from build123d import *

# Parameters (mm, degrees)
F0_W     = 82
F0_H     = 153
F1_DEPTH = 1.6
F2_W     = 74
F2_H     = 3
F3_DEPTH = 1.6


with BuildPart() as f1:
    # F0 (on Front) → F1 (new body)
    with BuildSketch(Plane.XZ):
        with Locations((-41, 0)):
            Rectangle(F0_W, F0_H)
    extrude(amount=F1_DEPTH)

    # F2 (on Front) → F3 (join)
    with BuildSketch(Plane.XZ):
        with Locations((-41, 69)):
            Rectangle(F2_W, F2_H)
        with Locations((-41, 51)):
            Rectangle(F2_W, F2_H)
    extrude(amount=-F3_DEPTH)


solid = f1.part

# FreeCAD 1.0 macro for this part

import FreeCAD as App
import Part
import Sketcher
Q = App.Units.Quantity

doc = App.newDocument("Part")
body = doc.addObject("PartDesign::Body", "Body")

# Sketch on XZ plane
sketch1 = body.newObject("Sketcher::SketchObject", "Sketch")
sketch1.AttachmentSupport = (doc.getObject("XZ_Plane"), [""])
sketch1.MapMode = "FlatFace"
sketch1.addGeometry([
    Part.LineSegment(App.Vector(-82, 76.5, 0), App.Vector(-82, -76.5, 0)),
    Part.LineSegment(App.Vector(-82, -76.5, 0), App.Vector(0, -76.5, 0)),
    Part.LineSegment(App.Vector(0, -76.5, 0), App.Vector(0, 76.5, 0)),
    Part.LineSegment(App.Vector(0, 76.5, 0), App.Vector(-82, 76.5, 0)),
], False)
sketch1.addConstraint([
    Sketcher.Constraint("Coincident", 0, 2, 1, 1),
    Sketcher.Constraint("Coincident", 1, 2, 2, 1),
    Sketcher.Constraint("Coincident", 2, 2, 3, 1),
    Sketcher.Constraint("Coincident", 3, 2, 0, 1),
    Sketcher.Constraint("Vertical", 0),
    Sketcher.Constraint("Horizontal", 1),
    Sketcher.Constraint("Vertical", 2),
    Sketcher.Constraint("Horizontal", 3),
    Sketcher.Constraint("Symmetric", 1, 2, 2, 2, -1, 1),
    Sketcher.Constraint("DistanceX", 1, 1, 1, 2, Q("82 mm")),
    Sketcher.Constraint("DistanceY", 0, 2, 0, 1, Q("153 mm")),
])
pad1 = body.newObject("PartDesign::Pad", "Pad")
pad1.Profile = sketch1
pad1.Length = 1.6

# Sketch on XZ plane
sketch2 = body.newObject("Sketcher::SketchObject", "Sketch001")
sketch2.AttachmentSupport = (doc.getObject("XZ_Plane"), [""])
sketch2.MapMode = "FlatFace"
sketch2.addGeometry([
    Part.LineSegment(App.Vector(-78, 70.5, 0), App.Vector(-78, 67.5, 0)),  # 0
    Part.LineSegment(App.Vector(-78, 67.5, 0), App.Vector(-4, 67.5, 0)),  # 1
    Part.LineSegment(App.Vector(-4, 67.5, 0), App.Vector(-4, 70.5, 0)),  # 2
    Part.LineSegment(App.Vector(-4, 70.5, 0), App.Vector(-78, 70.5, 0)),  # 3
    Part.LineSegment(App.Vector(-78, 52.5, 0), App.Vector(-78, 49.5, 0)),  # 4
    Part.LineSegment(App.Vector(-78, 49.5, 0), App.Vector(-4, 49.5, 0)),  # 5
    Part.LineSegment(App.Vector(-4, 49.5, 0), App.Vector(-4, 52.5, 0)),  # 6
    Part.LineSegment(App.Vector(-4, 52.5, 0), App.Vector(-78, 52.5, 0)),  # 7
], False)
sketch2.addConstraint([
    Sketcher.Constraint("Coincident", 0, 2, 1, 1),
    Sketcher.Constraint("Coincident", 1, 2, 2, 1),
    Sketcher.Constraint("Coincident", 2, 2, 3, 1),
    Sketcher.Constraint("Coincident", 3, 2, 0, 1),
    Sketcher.Constraint("Coincident", 4, 2, 5, 1),
    Sketcher.Constraint("Coincident", 5, 2, 6, 1),
    Sketcher.Constraint("Coincident", 6, 2, 7, 1),
    Sketcher.Constraint("Coincident", 7, 2, 4, 1),
    Sketcher.Constraint("Vertical", 0),
    Sketcher.Constraint("Horizontal", 1),
    Sketcher.Constraint("Vertical", 2),
    Sketcher.Constraint("Horizontal", 3),
    Sketcher.Constraint("Vertical", 4),
    Sketcher.Constraint("Horizontal", 5),
    Sketcher.Constraint("Vertical", 6),
    Sketcher.Constraint("Horizontal", 7),
    Sketcher.Constraint("Vertical", 3, 2, 4, 2),
    Sketcher.Constraint("Vertical", 2, 2, 5, 2),
    Sketcher.Constraint("Equal", 2, 4),
    Sketcher.Constraint("DistanceX", 1, 1, 1, 2, Q("74 mm")),
    Sketcher.Constraint("DistanceY", 0, 2, 0, 1, Q("3 mm")),
    Sketcher.Constraint("DistanceX", 0, 2, -1, 1, Q("78 mm")),
    Sketcher.Constraint("DistanceY", 4, 2, 0, 2, Q("18 mm")),
    Sketcher.Constraint("DistanceY", -1, 1, 0, 2, Q("67.5 mm")),
])
pad2 = body.newObject("PartDesign::Pad", "Pad001")
pad2.Profile = sketch2
pad2.Length = 1.6
pad2.Reversed = True

doc.recompute()
